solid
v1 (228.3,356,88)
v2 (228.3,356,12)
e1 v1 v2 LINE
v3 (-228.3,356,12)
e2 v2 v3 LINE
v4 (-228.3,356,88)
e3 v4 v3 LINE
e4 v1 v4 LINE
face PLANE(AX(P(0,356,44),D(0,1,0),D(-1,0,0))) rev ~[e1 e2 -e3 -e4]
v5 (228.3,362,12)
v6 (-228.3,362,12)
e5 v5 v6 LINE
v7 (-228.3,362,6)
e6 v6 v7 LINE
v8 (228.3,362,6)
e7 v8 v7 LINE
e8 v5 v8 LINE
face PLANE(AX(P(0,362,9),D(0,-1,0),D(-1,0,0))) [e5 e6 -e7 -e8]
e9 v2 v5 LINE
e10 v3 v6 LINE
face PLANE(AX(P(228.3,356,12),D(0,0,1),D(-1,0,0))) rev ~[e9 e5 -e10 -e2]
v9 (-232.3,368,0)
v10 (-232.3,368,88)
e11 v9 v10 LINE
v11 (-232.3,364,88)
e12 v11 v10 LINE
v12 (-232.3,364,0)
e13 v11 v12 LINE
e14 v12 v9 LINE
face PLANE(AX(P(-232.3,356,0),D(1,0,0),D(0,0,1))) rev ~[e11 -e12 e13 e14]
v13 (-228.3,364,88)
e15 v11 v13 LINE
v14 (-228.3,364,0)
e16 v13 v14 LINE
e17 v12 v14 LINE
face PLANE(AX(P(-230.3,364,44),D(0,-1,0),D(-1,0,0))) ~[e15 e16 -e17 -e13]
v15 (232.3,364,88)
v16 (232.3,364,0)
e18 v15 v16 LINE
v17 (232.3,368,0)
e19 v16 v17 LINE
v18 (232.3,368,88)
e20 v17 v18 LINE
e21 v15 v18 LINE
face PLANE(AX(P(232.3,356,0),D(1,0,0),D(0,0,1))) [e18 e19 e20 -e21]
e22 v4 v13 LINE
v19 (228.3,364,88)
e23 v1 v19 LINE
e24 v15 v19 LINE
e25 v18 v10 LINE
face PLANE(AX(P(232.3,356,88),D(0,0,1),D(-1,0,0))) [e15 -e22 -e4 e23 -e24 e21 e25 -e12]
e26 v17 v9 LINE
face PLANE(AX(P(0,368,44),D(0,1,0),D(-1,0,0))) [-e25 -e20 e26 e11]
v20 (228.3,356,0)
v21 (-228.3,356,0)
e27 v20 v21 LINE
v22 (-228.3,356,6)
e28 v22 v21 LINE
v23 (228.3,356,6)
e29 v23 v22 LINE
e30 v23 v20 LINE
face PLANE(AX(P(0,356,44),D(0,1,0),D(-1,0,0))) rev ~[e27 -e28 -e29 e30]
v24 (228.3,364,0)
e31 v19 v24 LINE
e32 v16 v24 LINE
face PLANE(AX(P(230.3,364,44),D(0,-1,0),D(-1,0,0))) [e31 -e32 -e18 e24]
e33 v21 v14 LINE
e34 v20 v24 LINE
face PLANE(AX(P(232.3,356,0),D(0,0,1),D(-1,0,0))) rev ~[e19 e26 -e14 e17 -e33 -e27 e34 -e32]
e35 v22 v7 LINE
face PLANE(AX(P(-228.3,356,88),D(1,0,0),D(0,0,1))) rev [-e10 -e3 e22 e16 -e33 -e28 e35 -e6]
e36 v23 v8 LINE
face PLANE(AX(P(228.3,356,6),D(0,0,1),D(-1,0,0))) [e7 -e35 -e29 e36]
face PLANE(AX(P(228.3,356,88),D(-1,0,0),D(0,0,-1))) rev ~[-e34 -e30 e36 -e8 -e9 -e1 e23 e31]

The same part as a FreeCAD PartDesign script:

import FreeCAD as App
import Part
import Sketcher

V = App.Vector
Q = App.Units.Quantity


def add_polygon(sketch, points):
    """Adds a closed chain of lines whose ends are joined by coincident constraints."""
    first, n = sketch.GeometryCount, len(points)
    for a, b in zip(points, points[1:] + points[:1]):
        sketch.addGeometry(Part.LineSegment(App.Vector(*a, 0), App.Vector(*b, 0)), False)
    for i in range(n):
        sketch.addConstraint(Sketcher.Constraint("Coincident", first + i, 2, first + (i + 1) % n, 1))

doc = App.newDocument("Part")
body = doc.addObject("PartDesign::Body", "Body")

sketch1 = body.newObject("Sketcher::SketchObject", "Sketch")
sketch1.AttachmentSupport = (doc.getObject("XY_Plane"), [""])
sketch1.MapMode = "FlatFace"
add_polygon(sketch1, [(-232, 88), (-232, 0), (232, 0), (232, 88)])
sketch1.addConstraint(Sketcher.Constraint("Vertical", 0))
sketch1.addConstraint(Sketcher.Constraint("Horizontal", 1))
sketch1.addConstraint(Sketcher.Constraint("Vertical", 2))
sketch1.addConstraint(Sketcher.Constraint("Horizontal", 3))
sketch1.addConstraint(Sketcher.Constraint("Symmetric", 0, 2, 1, 2, -1, 1))
sketch1.addConstraint(Sketcher.Constraint("DistanceY", 0, 2, 0, 1, Q("88 mm")))
sketch1.addConstraint(Sketcher.Constraint("DistanceX", 1, 1, 1, 2, Q("464.6 mm")))
pad1 = body.newObject("PartDesign::Pad", "Pad")
pad1.Profile = sketch1
pad1.Length = 12

sketch2 = body.newObject("Sketcher::SketchObject", "Sketch001")
sketch2.AttachmentSupport = (doc.getObject("XY_Plane"), [""])
sketch2.MapMode = "FlatFace"
add_polygon(sketch2, [(-232.3, 0), (-232.3, 88), (-228.3, 88), (-228.3, 0)])
sketch2.addConstraint(Sketcher.Constraint("Vertical", 0))
sketch2.addConstraint(Sketcher.Constraint("Horizontal", 1))
sketch2.addConstraint(Sketcher.Constraint("Vertical", 2))
sketch2.addConstraint(Sketcher.Constraint("Horizontal", 3))
sketch2.addConstraint(Sketcher.Constraint("PointOnObject", 2, 2, -1))
sketch2.addConstraint(Sketcher.Constraint("DistanceX", 1, 1, 1, 2, Q("4 mm")))
sketch2.addConstraint(Sketcher.Constraint("DistanceY", 0, 1, 0, 2, Q("88 mm")))
sketch2.addConstraint(Sketcher.Constraint("DistanceX", 0, 2, -1, 1, Q("232.3 mm")))
pocket1 = body.newObject("PartDesign::Pocket", "Pocket")
pocket1.Profile = sketch2
pocket1.Length = 8
pocket1.Reversed = True
doc.recompute()

mirrored = body.newObject("PartDesign::Mirrored", "Mirrored")
mirrored.Originals = [pocket1]
mirrored.MirrorPlane = (doc.getObject("YZ_Plane"), [""])
body.Tip = mirrored

sketch3 = body.newObject("Sketcher::SketchObject", "Sketch002")
sketch3.AttachmentSupport = (doc.getObject("XY_Plane"), [""])
sketch3.MapMode = "FlatFace"
add_polygon(sketch3, [(-228, 6), (-228, 12), (228, 12), (228, 6)])
sketch3.addConstraint(Sketcher.Constraint("Vertical", 0))
sketch3.addConstraint(Sketcher.Constraint("Horizontal", 1))
sketch3.addConstraint(Sketcher.Constraint("Vertical", 2))
sketch3.addConstraint(Sketcher.Constraint("Horizontal", 3))
sketch3.addConstraint(Sketcher.Constraint("DistanceY", 0, 1, 0, 2, Q("6 mm")))
sketch3.addConstraint(Sketcher.Constraint("DistanceX", 1, 1, 1, 2, Q("456.6 mm")))
sketch3.addConstraint(Sketcher.Constraint("DistanceY", -1, 1, 0, 2, Q("12 mm")))
sketch3.addConstraint(Sketcher.Constraint("DistanceX", 0, 2, -1, 1, Q("228.3 mm")))
pocket2 = body.newObject("PartDesign::Pocket", "Pocket001")
pocket2.Profile = sketch3
pocket2.Length = 6
pocket2.Reversed = True
body2 = doc.addObject("PartDesign::Body", "Body001")
doc.recompute()

body.Placement = App.Placement(V(0, 0, 0), App.Rotation(V(1, 0, 0), 90))
boolean = body2.newObject("PartDesign::Boolean", "Boolean")
boolean.Type = "Fuse"
boolean.addObjects([body])
body3 = doc.addObject("PartDesign::Body", "Body002")
doc.recompute()

body2.Placement = App.Placement(V(0, 356, 0), App.Rotation(V(0, 0, 1), 180))
boolean2 = body3.newObject("PartDesign::Boolean", "Boolean001")
boolean2.Type = "Fuse"
boolean2.addObjects([body2])

doc.recompute()
